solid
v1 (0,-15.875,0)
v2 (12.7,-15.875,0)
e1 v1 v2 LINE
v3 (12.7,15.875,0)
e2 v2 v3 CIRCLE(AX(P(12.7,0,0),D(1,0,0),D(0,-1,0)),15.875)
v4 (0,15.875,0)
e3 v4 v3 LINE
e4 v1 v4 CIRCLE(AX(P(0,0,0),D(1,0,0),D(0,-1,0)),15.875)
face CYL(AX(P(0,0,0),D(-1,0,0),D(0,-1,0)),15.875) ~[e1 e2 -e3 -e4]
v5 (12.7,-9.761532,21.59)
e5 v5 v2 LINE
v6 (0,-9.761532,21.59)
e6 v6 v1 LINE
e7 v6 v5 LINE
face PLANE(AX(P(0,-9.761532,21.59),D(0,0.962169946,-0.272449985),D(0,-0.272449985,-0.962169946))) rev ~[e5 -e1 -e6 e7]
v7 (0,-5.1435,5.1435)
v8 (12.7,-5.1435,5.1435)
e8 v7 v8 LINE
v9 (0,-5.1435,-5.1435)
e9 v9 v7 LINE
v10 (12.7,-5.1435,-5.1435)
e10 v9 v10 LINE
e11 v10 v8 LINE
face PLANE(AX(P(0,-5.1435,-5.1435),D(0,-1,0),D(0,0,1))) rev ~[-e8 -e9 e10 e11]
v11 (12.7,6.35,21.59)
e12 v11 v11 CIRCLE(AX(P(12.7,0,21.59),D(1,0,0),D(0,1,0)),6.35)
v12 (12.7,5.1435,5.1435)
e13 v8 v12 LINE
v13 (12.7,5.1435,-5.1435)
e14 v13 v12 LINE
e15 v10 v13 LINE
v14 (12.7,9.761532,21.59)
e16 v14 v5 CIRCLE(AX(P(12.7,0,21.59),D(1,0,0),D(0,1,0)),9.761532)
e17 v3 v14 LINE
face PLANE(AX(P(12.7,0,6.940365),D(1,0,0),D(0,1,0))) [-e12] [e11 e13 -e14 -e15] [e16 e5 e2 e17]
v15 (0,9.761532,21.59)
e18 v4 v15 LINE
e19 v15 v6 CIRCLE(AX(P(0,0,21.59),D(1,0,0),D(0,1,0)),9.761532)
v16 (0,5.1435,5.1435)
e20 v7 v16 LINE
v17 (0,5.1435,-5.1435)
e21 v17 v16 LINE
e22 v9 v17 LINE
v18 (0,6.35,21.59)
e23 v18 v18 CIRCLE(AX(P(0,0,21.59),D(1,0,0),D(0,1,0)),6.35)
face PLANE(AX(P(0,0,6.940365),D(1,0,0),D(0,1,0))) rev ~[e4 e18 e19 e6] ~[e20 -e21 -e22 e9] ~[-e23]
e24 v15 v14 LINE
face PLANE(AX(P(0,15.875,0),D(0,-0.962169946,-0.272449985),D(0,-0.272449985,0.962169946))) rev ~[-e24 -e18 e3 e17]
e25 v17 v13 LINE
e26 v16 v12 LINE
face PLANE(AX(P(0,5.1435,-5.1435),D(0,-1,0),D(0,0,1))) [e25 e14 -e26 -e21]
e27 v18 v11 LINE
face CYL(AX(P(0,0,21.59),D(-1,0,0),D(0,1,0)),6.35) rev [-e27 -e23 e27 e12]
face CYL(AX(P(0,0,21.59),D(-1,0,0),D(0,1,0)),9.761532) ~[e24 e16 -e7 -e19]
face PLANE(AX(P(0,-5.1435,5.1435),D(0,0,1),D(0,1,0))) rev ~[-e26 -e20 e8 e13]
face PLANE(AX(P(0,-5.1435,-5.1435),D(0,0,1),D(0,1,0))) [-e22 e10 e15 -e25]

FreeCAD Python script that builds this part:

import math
import FreeCAD as App
import Part
import Sketcher
Q = App.Units.Quantity

doc = App.newDocument("Part")
body = doc.addObject("PartDesign::Body", "Body")

sketch1 = body.newObject("Sketcher::SketchObject", "Sketch")
sketch1.AttachmentSupport = (doc.getObject("YZ_Plane"), [""])
sketch1.MapMode = "FlatFace"
sketch1.addGeometry(Part.LineSegment(App.Vector(16, 0, 0), App.Vector(10, 22, 0)), False)
sketch1.addGeometry(Part.ArcOfCircle(Part.Circle(App.Vector(0, 22, 0), App.Vector(0, 0, 1), 10), math.radians(0), math.radians(180)), False)
sketch1.addGeometry(Part.LineSegment(App.Vector(-10, 22, 0), App.Vector(-16, 0, 0)), False)
sketch1.addGeometry(Part.ArcOfCircle(Part.Circle(App.Vector(0, 0, 0), App.Vector(0, 0, 1), 16), math.radians(180), math.radians(360)), False)
sketch1.addGeometry(Part.LineSegment(App.Vector(5, -5, 0), App.Vector(-5, -5, 0)), False)
sketch1.addGeometry(Part.LineSegment(App.Vector(-5, -5, 0), App.Vector(-5, 5, 0)), False)
sketch1.addGeometry(Part.LineSegment(App.Vector(-5, 5, 0), App.Vector(5, 5, 0)), False)
sketch1.addGeometry(Part.LineSegment(App.Vector(5, 5, 0), App.Vector(5, -5, 0)), False)
sketch1.addGeometry(Part.Circle(App.Vector(0, 22, 0), App.Vector(0, 0, 1), 6), False)
sketch1.addConstraint(Sketcher.Constraint("Coincident", 0, 2, 1, 1))
sketch1.addConstraint(Sketcher.Constraint("Coincident", 1, 2, 2, 1))
sketch1.addConstraint(Sketcher.Constraint("Coincident", 2, 2, 3, 1))
sketch1.addConstraint(Sketcher.Constraint("Coincident", 3, 2, 0, 1))
sketch1.addConstraint(Sketcher.Constraint("Coincident", 4, 2, 5, 1))
sketch1.addConstraint(Sketcher.Constraint("Coincident", 5, 2, 6, 1))
sketch1.addConstraint(Sketcher.Constraint("Coincident", 6, 2, 7, 1))
sketch1.addConstraint(Sketcher.Constraint("Coincident", 7, 2, 4, 1))
sketch1.addConstraint(Sketcher.Constraint("Horizontal", 4))
sketch1.addConstraint(Sketcher.Constraint("Vertical", 5))
sketch1.addConstraint(Sketcher.Constraint("Horizontal", 6))
sketch1.addConstraint(Sketcher.Constraint("Vertical", 7))
sketch1.addConstraint(Sketcher.Constraint("Coincident", 3, 3, -1, 1))
sketch1.addConstraint(Sketcher.Constraint("Coincident", 8, 3, 1, 3))
sketch1.addConstraint(Sketcher.Constraint("Symmetric", 4, 2, 6, 2, -1, 1))
sketch1.addConstraint(Sketcher.Constraint("Symmetric", 0, 2, 1, 2, -2))
sketch1.addConstraint(Sketcher.Constraint("PointOnObject", 2, 2, -1))
sketch1.addConstraint(Sketcher.Constraint("PointOnObject", 3, 2, -1))
sketch1.addConstraint(Sketcher.Constraint("Horizontal", 8, 3, 0, 2))
sketch1.addConstraint(Sketcher.Constraint("Equal", 6, 5))
sketch1.addConstraint(Sketcher.Constraint("Diameter", 8, Q("0.5 in")))
sketch1.addConstraint(Sketcher.Constraint("Radius", 3, Q("0.625 in")))
sketch1.addConstraint(Sketcher.Constraint("DistanceX", 4, 2, 4, 1, Q("0.405 in")))
sketch1.addConstraint(Sketcher.Constraint("DistanceY", -1, 1, 1, 3, Q("0.85 in")))
sketch1.addConstraint(Sketcher.Constraint("Radius", 1, 9.761532))
pad1 = body.newObject("PartDesign::Pad", "Pad")
pad1.Profile = sketch1
pad1.Length = Q("0.5 in")

doc.recompute()
